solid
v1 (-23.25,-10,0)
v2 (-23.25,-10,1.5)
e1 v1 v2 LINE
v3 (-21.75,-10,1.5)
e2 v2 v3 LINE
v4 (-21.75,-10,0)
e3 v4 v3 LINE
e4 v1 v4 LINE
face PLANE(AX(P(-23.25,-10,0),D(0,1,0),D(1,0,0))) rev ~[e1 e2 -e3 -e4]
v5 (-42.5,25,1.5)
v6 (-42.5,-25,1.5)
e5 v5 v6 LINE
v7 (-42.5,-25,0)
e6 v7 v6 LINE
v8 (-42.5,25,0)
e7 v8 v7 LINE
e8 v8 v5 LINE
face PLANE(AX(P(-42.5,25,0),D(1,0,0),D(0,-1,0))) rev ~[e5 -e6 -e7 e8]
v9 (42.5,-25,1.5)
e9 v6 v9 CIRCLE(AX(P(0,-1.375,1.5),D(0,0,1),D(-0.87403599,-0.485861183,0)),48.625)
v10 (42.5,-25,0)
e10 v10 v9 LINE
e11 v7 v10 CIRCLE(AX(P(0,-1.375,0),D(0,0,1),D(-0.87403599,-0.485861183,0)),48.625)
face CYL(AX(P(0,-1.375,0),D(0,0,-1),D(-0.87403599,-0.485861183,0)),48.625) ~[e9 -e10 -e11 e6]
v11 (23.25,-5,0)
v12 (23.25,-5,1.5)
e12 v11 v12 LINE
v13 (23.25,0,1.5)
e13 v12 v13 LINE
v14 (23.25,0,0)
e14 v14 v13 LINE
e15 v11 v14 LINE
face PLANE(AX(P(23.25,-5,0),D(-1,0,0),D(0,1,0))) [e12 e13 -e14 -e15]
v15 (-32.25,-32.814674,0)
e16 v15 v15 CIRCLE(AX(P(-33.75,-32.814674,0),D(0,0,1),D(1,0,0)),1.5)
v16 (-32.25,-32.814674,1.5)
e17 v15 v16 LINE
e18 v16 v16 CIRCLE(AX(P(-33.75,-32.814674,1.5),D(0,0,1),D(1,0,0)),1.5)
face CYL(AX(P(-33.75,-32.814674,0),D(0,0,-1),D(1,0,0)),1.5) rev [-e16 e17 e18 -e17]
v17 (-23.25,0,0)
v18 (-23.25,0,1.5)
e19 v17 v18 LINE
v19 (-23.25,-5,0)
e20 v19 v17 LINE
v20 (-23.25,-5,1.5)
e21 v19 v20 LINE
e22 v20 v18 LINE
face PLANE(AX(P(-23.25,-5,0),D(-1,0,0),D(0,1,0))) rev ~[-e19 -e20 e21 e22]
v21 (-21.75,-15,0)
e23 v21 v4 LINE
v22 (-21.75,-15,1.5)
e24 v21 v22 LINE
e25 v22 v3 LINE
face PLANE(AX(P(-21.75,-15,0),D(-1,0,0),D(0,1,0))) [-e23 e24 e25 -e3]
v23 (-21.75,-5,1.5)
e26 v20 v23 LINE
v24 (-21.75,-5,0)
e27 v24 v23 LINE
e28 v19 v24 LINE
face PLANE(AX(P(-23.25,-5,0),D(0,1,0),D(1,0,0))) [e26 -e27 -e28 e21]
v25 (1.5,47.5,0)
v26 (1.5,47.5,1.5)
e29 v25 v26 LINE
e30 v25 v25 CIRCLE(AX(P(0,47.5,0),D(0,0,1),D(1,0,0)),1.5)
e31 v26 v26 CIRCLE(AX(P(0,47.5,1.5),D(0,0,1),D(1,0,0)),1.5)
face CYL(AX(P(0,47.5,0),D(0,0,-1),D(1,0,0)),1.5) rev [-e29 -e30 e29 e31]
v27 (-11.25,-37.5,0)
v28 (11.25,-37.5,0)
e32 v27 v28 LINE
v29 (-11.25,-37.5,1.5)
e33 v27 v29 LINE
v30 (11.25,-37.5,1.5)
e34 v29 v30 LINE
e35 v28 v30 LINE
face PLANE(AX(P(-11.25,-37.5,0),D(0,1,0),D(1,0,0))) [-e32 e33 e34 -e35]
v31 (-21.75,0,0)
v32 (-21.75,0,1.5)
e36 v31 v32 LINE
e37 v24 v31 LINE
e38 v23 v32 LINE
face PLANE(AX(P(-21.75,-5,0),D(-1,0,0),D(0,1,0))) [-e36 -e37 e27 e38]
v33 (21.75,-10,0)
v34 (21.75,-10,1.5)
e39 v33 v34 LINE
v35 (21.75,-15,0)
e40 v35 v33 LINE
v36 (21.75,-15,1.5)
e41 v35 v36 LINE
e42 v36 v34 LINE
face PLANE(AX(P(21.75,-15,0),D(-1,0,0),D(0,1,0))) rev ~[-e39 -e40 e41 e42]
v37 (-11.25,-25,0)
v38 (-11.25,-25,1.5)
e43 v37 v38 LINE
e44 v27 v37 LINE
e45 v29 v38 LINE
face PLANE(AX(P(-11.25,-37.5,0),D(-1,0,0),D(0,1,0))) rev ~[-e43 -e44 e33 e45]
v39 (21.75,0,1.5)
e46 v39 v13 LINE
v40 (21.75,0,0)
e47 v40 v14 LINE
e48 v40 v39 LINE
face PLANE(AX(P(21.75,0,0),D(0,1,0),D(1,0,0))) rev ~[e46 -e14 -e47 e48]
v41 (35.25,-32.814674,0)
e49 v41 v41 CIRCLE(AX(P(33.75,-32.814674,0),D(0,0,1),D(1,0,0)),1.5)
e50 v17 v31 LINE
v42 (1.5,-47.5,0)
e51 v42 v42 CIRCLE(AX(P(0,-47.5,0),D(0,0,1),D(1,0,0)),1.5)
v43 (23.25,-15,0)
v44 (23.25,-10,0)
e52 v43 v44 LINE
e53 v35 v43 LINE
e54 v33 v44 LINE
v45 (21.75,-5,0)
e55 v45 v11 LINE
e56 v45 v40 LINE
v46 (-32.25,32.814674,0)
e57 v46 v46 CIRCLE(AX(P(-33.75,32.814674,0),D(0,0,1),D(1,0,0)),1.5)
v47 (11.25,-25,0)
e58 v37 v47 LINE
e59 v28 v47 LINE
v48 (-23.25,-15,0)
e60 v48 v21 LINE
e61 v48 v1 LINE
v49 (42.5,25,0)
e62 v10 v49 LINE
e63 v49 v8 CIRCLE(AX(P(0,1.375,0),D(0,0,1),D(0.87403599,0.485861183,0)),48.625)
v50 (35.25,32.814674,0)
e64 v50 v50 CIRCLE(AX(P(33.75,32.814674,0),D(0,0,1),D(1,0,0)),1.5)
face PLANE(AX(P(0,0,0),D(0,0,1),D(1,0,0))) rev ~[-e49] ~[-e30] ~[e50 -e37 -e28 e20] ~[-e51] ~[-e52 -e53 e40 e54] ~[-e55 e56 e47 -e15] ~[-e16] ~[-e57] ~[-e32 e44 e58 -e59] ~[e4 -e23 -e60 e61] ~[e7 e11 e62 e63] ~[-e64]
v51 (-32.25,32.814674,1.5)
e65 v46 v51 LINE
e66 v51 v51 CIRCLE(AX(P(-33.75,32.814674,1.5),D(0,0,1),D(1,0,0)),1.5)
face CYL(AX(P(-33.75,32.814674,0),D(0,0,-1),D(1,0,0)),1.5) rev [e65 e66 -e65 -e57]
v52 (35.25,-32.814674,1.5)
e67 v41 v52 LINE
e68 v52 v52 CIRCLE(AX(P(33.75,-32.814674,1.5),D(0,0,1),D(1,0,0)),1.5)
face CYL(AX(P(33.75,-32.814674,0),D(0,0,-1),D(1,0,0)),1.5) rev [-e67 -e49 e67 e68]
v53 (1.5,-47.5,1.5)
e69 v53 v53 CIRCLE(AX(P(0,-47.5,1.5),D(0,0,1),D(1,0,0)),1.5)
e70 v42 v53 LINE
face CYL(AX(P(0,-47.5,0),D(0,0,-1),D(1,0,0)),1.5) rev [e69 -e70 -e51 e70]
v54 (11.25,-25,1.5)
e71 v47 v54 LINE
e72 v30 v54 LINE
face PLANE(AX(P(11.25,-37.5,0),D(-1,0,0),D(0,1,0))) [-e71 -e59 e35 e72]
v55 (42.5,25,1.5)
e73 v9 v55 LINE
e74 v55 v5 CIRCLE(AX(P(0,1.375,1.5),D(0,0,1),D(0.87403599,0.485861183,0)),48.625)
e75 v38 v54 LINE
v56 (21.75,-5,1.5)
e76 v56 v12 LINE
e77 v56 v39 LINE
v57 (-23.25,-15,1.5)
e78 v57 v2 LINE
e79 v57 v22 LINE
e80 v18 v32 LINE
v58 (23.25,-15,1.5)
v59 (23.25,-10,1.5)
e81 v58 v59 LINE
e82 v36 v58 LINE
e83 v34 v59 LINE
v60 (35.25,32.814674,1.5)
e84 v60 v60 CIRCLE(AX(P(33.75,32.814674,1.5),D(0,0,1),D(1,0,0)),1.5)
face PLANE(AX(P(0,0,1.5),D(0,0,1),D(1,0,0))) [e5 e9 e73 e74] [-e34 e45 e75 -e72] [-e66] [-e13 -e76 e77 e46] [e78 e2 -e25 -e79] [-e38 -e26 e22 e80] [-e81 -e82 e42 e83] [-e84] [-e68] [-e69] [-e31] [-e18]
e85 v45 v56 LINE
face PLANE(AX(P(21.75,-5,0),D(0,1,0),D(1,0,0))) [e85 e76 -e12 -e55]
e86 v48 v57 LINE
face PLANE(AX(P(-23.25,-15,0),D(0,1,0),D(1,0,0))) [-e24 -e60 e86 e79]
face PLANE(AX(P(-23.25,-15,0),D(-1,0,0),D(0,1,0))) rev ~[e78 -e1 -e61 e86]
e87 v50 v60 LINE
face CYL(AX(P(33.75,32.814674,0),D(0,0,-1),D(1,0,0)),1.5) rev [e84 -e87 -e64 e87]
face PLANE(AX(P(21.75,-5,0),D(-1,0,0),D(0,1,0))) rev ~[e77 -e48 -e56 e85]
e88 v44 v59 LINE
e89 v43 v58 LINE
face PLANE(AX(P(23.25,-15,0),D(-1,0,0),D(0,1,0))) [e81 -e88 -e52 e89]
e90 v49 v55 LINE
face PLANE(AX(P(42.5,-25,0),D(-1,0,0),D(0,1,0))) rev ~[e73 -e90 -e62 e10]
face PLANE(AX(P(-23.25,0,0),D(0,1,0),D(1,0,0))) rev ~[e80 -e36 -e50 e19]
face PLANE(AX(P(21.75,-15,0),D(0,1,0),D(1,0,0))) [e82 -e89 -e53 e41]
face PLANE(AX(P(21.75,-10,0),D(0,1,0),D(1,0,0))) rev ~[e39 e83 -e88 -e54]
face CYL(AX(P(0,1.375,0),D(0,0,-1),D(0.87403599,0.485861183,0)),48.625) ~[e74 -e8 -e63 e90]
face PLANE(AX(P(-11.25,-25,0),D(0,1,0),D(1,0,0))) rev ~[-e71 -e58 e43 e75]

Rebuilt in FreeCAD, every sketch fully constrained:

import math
import FreeCAD as App
import Part
import Sketcher
from FreeCAD import Vector
Q = App.Units.Quantity


def add_polygon(sketch, points):
    """Adds a closed chain of lines whose ends are joined by coincident constraints."""
    first, n = sketch.GeometryCount, len(points)
    for a, b in zip(points, points[1:] + points[:1]):
        sketch.addGeometry(Part.LineSegment(App.Vector(*a, 0), App.Vector(*b, 0)), False)
    for i in range(n):
        sketch.addConstraint(Sketcher.Constraint("Coincident", first + i, 2, first + (i + 1) % n, 1))

doc = App.newDocument("Part")
body = doc.addObject("PartDesign::Body", "Body")

sketch1 = doc.addObject("Sketcher::SketchObject", "Sketch")
body.addObject(sketch1)
sketch1.AttachmentSupport = (doc.XY_Plane, [""])
sketch1.MapMode = "FlatFace"
sketch1.addGeometry(Part.LineSegment(Vector(42.5, -25, 0), Vector(42.5, 25, 0)), False)
sketch1.addGeometry(Part.ArcOfCircle(Part.Circle(Vector(0, 1.4, 0), Vector(0, 0, 1), 48.6), math.radians(29), math.radians(151)), False)
sketch1.addGeometry(Part.LineSegment(Vector(-42.5, 25, 0), Vector(-42.5, -25, 0)), False)
sketch1.addGeometry(Part.ArcOfCircle(Part.Circle(Vector(0, -1.4, 0), Vector(0, 0, 1), 48.6), math.radians(-151), math.radians(-29)), False)
sketch1.addGeometry(Part.Circle(Vector(-33.8, -32.8, 0), Vector(0, 0, 1), 1.5), False)
add_polygon(sketch1, [(-21.8, -15), (-23.2, -15), (-23.2, -10), (-21.8, -10)])
add_polygon(sketch1, [(-21.8, -5), (-23.2, -5), (-23.2, 0), (-21.8, 0)])
sketch1.addGeometry(Part.Circle(Vector(0, -47.5, 0), Vector(0, 0, 1), 1.5), False)
add_polygon(sketch1, [(11.2, -37.5), (-11.2, -37.5), (-11.2, -25), (11.2, -25)])
sketch1.addGeometry(Part.Circle(Vector(33.8, -32.8, 0), Vector(0, 0, 1), 1.5), False)
add_polygon(sketch1, [(23.2, -15), (21.8, -15), (21.8, -10), (23.2, -10)])
add_polygon(sketch1, [(23.2, -5), (21.8, -5), (21.8, 0), (23.2, 0)])
sketch1.addGeometry(Part.Circle(Vector(-33.8, 32.8, 0), Vector(0, 0, 1), 1.5), False)
sketch1.addGeometry(Part.Circle(Vector(0, 47.5, 0), Vector(0, 0, 1), 1.5), False)
sketch1.addGeometry(Part.Circle(Vector(33.8, 32.8, 0), Vector(0, 0, 1), 1.5), False)
sketch1.addConstraint([
    Sketcher.Constraint("Coincident", 0, 2, 1, 1),
    Sketcher.Constraint("Coincident", 1, 2, 2, 1),
    Sketcher.Constraint("Coincident", 2, 2, 3, 1),
    Sketcher.Constraint("Coincident", 3, 2, 0, 1),
    Sketcher.Constraint("Vertical", 0),
    Sketcher.Constraint("Vertical", 2),
    Sketcher.Constraint("Horizontal", 5),
    Sketcher.Constraint("Vertical", 6),
    Sketcher.Constraint("Horizontal", 7),
    Sketcher.Constraint("Vertical", 8),
    Sketcher.Constraint("Horizontal", 9),
    Sketcher.Constraint("Vertical", 10),
    Sketcher.Constraint("Horizontal", 11),
    Sketcher.Constraint("Vertical", 12),
    Sketcher.Constraint("Horizontal", 14),
    Sketcher.Constraint("Vertical", 15),
    Sketcher.Constraint("Horizontal", 16),
    Sketcher.Constraint("Vertical", 17),
    Sketcher.Constraint("Horizontal", 19),
    Sketcher.Constraint("Vertical", 20),
    Sketcher.Constraint("Horizontal", 21),
    Sketcher.Constraint("Vertical", 22),
    Sketcher.Constraint("Horizontal", 23),
    Sketcher.Constraint("Vertical", 24),
    Sketcher.Constraint("Horizontal", 25),
    Sketcher.Constraint("Vertical", 26),
    Sketcher.Constraint("Equal", 1, 3),
    Sketcher.Constraint("Equal", 4, 13),
    Sketcher.Constraint("Equal", 13, 18),
    Sketcher.Constraint("Equal", 18, 27),
    Sketcher.Constraint("Equal", 27, 28),
    Sketcher.Constraint("Equal", 28, 29),
    Sketcher.Constraint("Symmetric", 1, 3, 3, 3, -1, 1),
    Sketcher.Constraint("Symmetric", 18, 3, 27, 3, -1, 1),
    Sketcher.Constraint("Symmetric", 13, 3, 28, 3, -1, 1),
    Sketcher.Constraint("Symmetric", 4, 3, 29, 3, -1, 1),
    Sketcher.Constraint("Symmetric", 11, 2, 24, 2, -1, 1),
    Sketcher.Constraint("Symmetric", 4, 3, 18, 3, -2),
    Sketcher.Constraint("Symmetric", 0, 2, 1, 2, -2),
    Sketcher.Constraint("Symmetric", 8, 2, 19, 2, -2),
    Sketcher.Constraint("Symmetric", 6, 2, 21, 2, -2),
    Sketcher.Constraint("Symmetric", 10, 2, 25, 2, -2),
    Sketcher.Constraint("PointOnObject", 13, 3, -2),
    Sketcher.Constraint("Horizontal", 3, 2, 15, 2),
    Sketcher.Constraint("Horizontal", 12, 2, 23, 2),
    Sketcher.Constraint("Vertical", 6, 2, 9, 2),
    Sketcher.Constraint("Vertical", 8, 2, 11, 2),
    Sketcher.Constraint("Equal", 8, 10),
    Sketcher.Constraint("Diameter", 4, Q("3 mm")),
    Sketcher.Constraint("DistanceY", 0, 1, 0, 2, Q("50 mm")),
    Sketcher.Constraint("DistanceY", 6, 1, 6, 2, Q("5 mm")),
    Sketcher.Constraint("DistanceX", 5, 2, 5, 1, Q("1.5 mm")),
    Sketcher.Constraint("DistanceX", 14, 2, 14, 1, Q("22.5 mm")),
    Sketcher.Constraint("DistanceY", 15, 1, 15, 2, Q("12.5 mm")),
    Sketcher.Constraint("DistanceY", 5, 2, -1, 1, Q("15 mm")),
    Sketcher.Constraint("Radius", 1, Q("48.625 mm")),
    Sketcher.Constraint("DistanceX", 4, 3, 8, 2, Q("12 mm")),
    Sketcher.Constraint("DistanceY", 13, 3, 14, 2, Q("10 mm")),
    Sketcher.Constraint("DistanceX", 5, 2, 14, 2, Q("12 mm")),
    Sketcher.Constraint("DistanceX", 16, 2, 21, 2, Q("12 mm")),
    Sketcher.Constraint("DistanceX", -1, 1, 0, 2, Q("42.5 mm")),
    Sketcher.Constraint("DistanceY", 4, 3, -1, 1, Q("32.814674 mm")),
])
pad1 = doc.addObject("PartDesign::Pad", "Pad")
body.addObject(pad1)
pad1.Profile = sketch1
pad1.Length = 1.5

doc.recompute()
